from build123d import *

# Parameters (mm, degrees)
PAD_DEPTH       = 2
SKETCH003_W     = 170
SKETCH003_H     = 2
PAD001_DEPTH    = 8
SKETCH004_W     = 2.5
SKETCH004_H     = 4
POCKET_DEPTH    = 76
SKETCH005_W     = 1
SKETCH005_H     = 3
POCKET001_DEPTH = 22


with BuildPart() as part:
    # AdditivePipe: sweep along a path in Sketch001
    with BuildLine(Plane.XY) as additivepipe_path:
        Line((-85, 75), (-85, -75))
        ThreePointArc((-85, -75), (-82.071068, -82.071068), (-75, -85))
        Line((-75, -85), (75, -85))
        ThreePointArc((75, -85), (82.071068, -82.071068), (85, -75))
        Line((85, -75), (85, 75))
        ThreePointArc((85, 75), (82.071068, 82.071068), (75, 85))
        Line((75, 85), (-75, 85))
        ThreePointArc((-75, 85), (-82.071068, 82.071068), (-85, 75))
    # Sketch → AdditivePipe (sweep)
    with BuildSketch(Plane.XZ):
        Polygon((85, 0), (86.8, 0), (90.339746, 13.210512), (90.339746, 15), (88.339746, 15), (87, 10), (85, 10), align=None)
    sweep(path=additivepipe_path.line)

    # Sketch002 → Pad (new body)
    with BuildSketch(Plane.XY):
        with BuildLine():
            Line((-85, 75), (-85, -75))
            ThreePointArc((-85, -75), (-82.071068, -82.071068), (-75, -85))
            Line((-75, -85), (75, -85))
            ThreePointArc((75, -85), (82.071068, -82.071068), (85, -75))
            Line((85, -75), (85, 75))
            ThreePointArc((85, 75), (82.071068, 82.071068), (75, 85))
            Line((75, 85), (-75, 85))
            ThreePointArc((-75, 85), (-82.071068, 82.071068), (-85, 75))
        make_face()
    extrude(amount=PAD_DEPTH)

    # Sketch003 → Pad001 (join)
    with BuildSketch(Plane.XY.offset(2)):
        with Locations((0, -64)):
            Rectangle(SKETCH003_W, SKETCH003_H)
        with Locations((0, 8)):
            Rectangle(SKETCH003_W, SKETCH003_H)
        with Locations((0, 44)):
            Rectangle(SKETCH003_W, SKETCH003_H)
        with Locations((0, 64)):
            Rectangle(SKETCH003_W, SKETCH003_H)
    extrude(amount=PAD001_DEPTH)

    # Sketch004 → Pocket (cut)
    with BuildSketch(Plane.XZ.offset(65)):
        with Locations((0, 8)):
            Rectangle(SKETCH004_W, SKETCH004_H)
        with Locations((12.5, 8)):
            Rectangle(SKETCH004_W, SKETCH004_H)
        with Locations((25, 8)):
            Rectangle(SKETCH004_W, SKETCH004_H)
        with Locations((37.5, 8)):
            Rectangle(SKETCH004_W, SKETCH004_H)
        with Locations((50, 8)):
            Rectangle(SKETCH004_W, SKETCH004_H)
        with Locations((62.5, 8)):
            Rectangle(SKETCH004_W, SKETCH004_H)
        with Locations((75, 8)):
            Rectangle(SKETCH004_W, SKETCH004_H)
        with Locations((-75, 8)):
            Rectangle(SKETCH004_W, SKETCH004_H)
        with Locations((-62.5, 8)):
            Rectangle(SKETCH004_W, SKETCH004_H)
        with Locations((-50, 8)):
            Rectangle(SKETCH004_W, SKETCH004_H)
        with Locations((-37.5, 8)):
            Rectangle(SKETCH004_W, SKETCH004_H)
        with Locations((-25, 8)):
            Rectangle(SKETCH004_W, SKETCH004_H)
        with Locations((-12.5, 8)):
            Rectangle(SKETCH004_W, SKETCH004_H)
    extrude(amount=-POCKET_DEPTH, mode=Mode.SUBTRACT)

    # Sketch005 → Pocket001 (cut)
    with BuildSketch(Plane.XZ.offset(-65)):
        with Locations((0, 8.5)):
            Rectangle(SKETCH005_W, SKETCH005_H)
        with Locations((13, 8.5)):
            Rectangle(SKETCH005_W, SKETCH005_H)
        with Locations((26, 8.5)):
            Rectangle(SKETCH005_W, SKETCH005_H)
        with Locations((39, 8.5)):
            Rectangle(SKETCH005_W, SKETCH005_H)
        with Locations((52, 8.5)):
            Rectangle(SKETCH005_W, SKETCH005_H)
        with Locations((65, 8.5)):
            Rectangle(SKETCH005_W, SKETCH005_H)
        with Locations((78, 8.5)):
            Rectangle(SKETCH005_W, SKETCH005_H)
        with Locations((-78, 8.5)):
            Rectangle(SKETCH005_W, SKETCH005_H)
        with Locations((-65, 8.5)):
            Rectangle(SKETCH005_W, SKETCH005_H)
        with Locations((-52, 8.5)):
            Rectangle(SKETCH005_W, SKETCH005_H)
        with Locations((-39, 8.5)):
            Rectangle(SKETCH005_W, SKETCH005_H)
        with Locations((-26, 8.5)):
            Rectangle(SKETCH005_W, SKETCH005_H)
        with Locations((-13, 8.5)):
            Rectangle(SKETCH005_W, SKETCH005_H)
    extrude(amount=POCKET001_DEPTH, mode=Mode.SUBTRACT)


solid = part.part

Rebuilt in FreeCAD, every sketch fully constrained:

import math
import FreeCAD as App
import Part
import Sketcher

V = App.Vector
Q = App.Units.Quantity


def add_polygon(sketch, points):
    """Adds a closed chain of lines whose ends are joined by coincident constraints."""
    first, n = sketch.GeometryCount, len(points)
    for a, b in zip(points, points[1:] + points[:1]):
        sketch.addGeometry(Part.LineSegment(App.Vector(*a, 0), App.Vector(*b, 0)), False)
    for i in range(n):
        sketch.addConstraint(Sketcher.Constraint("Coincident", first + i, 2, first + (i + 1) % n, 1))

doc = App.newDocument("Part")
body = doc.addObject("PartDesign::Body", "Body")

# Sketch on XZ plane
sketch1 = body.newObject("Sketcher::SketchObject", "Sketch")
sketch1.AttachmentSupport = (doc.getObject("XZ_Plane"), [""])
sketch1.MapMode = "FlatFace"
add_polygon(sketch1, [(85, 0), (86.8, 0), (90.3, 13.2), (90.3, 15), (88.3, 15), (87, 10), (85, 10)])  # lines 0-6
sketch1.addConstraint([
    Sketcher.Constraint("Horizontal", 0),
    Sketcher.Constraint("Vertical", 2),
    Sketcher.Constraint("Horizontal", 3),
    Sketcher.Constraint("Horizontal", 5),
    Sketcher.Constraint("Vertical", 6),
    Sketcher.Constraint("PointOnObject", 0, 2, -1),
    Sketcher.Constraint("Parallel", 1, 4),
    Sketcher.Constraint("Equal", 3, 5),
    Sketcher.Constraint("DistanceX", 3, 2, 3, 1, 2.0),
    Sketcher.Constraint("DistanceY", 6, 2, 6, 1, 10.0),
    Sketcher.Constraint("Angle", 1, Q("75 deg")),
    Sketcher.Constraint("DistanceX", 0, 1, 0, 2, 1.8),
    Sketcher.Constraint("DistanceY", -1, 1, 2, 2, 15.0),
    Sketcher.Constraint("DistanceX", -1, 1, 4, 2, 87.0),
])

# Sketch on XY plane
sketch2 = body.newObject("Sketcher::SketchObject", "Sketch001")
sketch2.AttachmentSupport = (doc.getObject("XY_Plane"), [""])
sketch2.MapMode = "FlatFace"
sketch2.addGeometry([
    Part.LineSegment(V(-85, 75, 0), V(-85, -75, 0)),  # 0
    Part.ArcOfCircle(Part.Circle(V(-75, -75, 0), V(0, 0, 1), 10), math.radians(180), math.radians(270)),  # 1
    Part.LineSegment(V(-75, -85, 0), V(75, -85, 0)),  # 2
    Part.ArcOfCircle(Part.Circle(V(75, -75, 0), V(0, 0, 1), 10), math.radians(-90), math.radians(0)),  # 3
    Part.LineSegment(V(85, -75, 0), V(85, 75, 0)),  # 4
    Part.ArcOfCircle(Part.Circle(V(75, 75, 0), V(0, 0, 1), 10), math.radians(0), math.radians(90)),  # 5
    Part.LineSegment(V(75, 85, 0), V(-75, 85, 0)),  # 6
    Part.ArcOfCircle(Part.Circle(V(-75, 75, 0), V(0, 0, 1), 10), math.radians(90), math.radians(180)),  # 7
], False)
sketch2.addConstraint([
    Sketcher.Constraint("Tangent", 0, 2, 1, 1),
    Sketcher.Constraint("Tangent", 1, 2, 2, 1),
    Sketcher.Constraint("Tangent", 2, 2, 3, 1),
    Sketcher.Constraint("Tangent", 3, 2, 4, 1),
    Sketcher.Constraint("Tangent", 4, 2, 5, 1),
    Sketcher.Constraint("Tangent", 5, 2, 6, 1),
    Sketcher.Constraint("Tangent", 6, 2, 7, 1),
    Sketcher.Constraint("Tangent", 7, 2, 0, 1),
    Sketcher.Constraint("Vertical", 0),
    Sketcher.Constraint("Horizontal", 2),
    Sketcher.Constraint("Vertical", 4),
    Sketcher.Constraint("Horizontal", 6),
    Sketcher.Constraint("Equal", 1, 3),
    Sketcher.Constraint("Equal", 3, 5),
    Sketcher.Constraint("Equal", 5, 7),
    Sketcher.Constraint("Symmetric", 1, 3, 5, 3, -1, 1),
    Sketcher.Constraint("Equal", 6, 0),
    Sketcher.Constraint("Radius", 1, 9.999999),
    Sketcher.Constraint("DistanceX", 2, 1, 2, 2, 150.0),
])
doc.recompute()

additivepipe = body.newObject("PartDesign::AdditivePipe", "AdditivePipe")
additivepipe.Profile = sketch1
additivepipe.Spine = (sketch2, ["Edge1", "Edge2", "Edge3", "Edge4", "Edge5", "Edge6", "Edge7", "Edge8"])

# Sketch on XY plane
sketch3 = body.newObject("Sketcher::SketchObject", "Sketch002")
sketch3.AttachmentSupport = (doc.getObject("XY_Plane"), [""])
sketch3.MapMode = "FlatFace"
sketch3.addGeometry([
    Part.LineSegment(V(-85, 75, 0), V(-85, -75, 0)),  # 0
    Part.ArcOfCircle(Part.Circle(V(-75, -75, 0), V(0, 0, 1), 10), math.radians(180), math.radians(270)),  # 1
    Part.LineSegment(V(-75, -85, 0), V(75, -85, 0)),  # 2
    Part.ArcOfCircle(Part.Circle(V(75, -75, 0), V(0, 0, 1), 10), math.radians(-90), math.radians(0)),  # 3
    Part.LineSegment(V(85, -75, 0), V(85, 75, 0)),  # 4
    Part.ArcOfCircle(Part.Circle(V(75, 75, 0), V(0, 0, 1), 10), math.radians(0), math.radians(90)),  # 5
    Part.LineSegment(V(75, 85, 0), V(-75, 85, 0)),  # 6
    Part.ArcOfCircle(Part.Circle(V(-75, 75, 0), V(0, 0, 1), 10), math.radians(90), math.radians(180)),  # 7
], False)
sketch3.addConstraint([
    Sketcher.Constraint("Tangent", 0, 2, 1, 1),
    Sketcher.Constraint("Tangent", 1, 2, 2, 1),
    Sketcher.Constraint("Tangent", 2, 2, 3, 1),
    Sketcher.Constraint("Tangent", 3, 2, 4, 1),
    Sketcher.Constraint("Tangent", 4, 2, 5, 1),
    Sketcher.Constraint("Tangent", 5, 2, 6, 1),
    Sketcher.Constraint("Tangent", 6, 2, 7, 1),
    Sketcher.Constraint("Tangent", 7, 2, 0, 1),
    Sketcher.Constraint("Vertical", 0),
    Sketcher.Constraint("Horizontal", 2),
    Sketcher.Constraint("Vertical", 4),
    Sketcher.Constraint("Horizontal", 6),
    Sketcher.Constraint("Equal", 1, 3),
    Sketcher.Constraint("Equal", 3, 5),
    Sketcher.Constraint("Equal", 5, 7),
    Sketcher.Constraint("Symmetric", 1, 3, 5, 3, -1, 1),
    Sketcher.Constraint("Equal", 6, 0),
    Sketcher.Constraint("Radius", 1, 9.999999),
    Sketcher.Constraint("DistanceX", 2, 1, 2, 2, 150.0),
])
pad1 = body.newObject("PartDesign::Pad", "Pad")
pad1.Profile = sketch3
pad1.Length = 2

# Sketch on XY plane
sketch4 = body.newObject("Sketcher::SketchObject", "Sketch003")
sketch4.AttachmentSupport = (doc.getObject("XY_Plane"), [""])
sketch4.MapMode = "FlatFace"
sketch4.AttachmentOffset = App.Placement(V(0, 0, 2), App.Rotation())
add_polygon(sketch4, [(-85, -63), (-85, -65), (85, -65), (85, -63)])  # lines 0-3
add_polygon(sketch4, [(-85, 9), (-85, 7), (85, 7), (85, 9)])  # lines 4-7
add_polygon(sketch4, [(-85, 45), (-85, 43), (85, 43), (85, 45)])  # lines 8-11
add_polygon(sketch4, [(-85, 65), (-85, 63), (85, 63), (85, 65)])  # lines 12-15
sketch4.addConstraint([
    Sketcher.Constraint("Vertical", 0),
    Sketcher.Constraint("Horizontal", 1),
    Sketcher.Constraint("Vertical", 2),
    Sketcher.Constraint("Horizontal", 3),
    Sketcher.Constraint("Vertical", 4),
    Sketcher.Constraint("Horizontal", 5),
    Sketcher.Constraint("Vertical", 6),
    Sketcher.Constraint("Horizontal", 7),
    Sketcher.Constraint("Vertical", 8),
    Sketcher.Constraint("Horizontal", 9),
    Sketcher.Constraint("Vertical", 10),
    Sketcher.Constraint("Horizontal", 11),
    Sketcher.Constraint("Vertical", 12),
    Sketcher.Constraint("Horizontal", 13),
    Sketcher.Constraint("Vertical", 14),
    Sketcher.Constraint("Horizontal", 15),
    Sketcher.Constraint("Symmetric", 2, 2, 12, 2, -1, 1),
    Sketcher.Constraint("Symmetric", 0, 2, 14, 2, -1, 1),
    Sketcher.Constraint("Vertical", 3, 2, 4, 2),
    Sketcher.Constraint("Vertical", 2, 2, 5, 2),
    Sketcher.Constraint("Vertical", 7, 2, 8, 2),
    Sketcher.Constraint("Vertical", 6, 2, 9, 2),
    Sketcher.Constraint("Vertical", 11, 2, 12, 2),
    Sketcher.Constraint("Equal", 2, 4),
    Sketcher.Constraint("Equal", 6, 8),
    Sketcher.Constraint("DistanceX", 1, 1, 1, 2, 170.0),
    Sketcher.Constraint("DistanceY", 0, 2, 0, 1, 2.0),
    Sketcher.Constraint("DistanceY", 0, 2, -1, 1, 65.0),
    Sketcher.Constraint("DistanceY", -1, 1, 4, 2, 7.0),
    Sketcher.Constraint("DistanceY", -1, 1, 8, 2, 43.0),
])
pad2 = body.newObject("PartDesign::Pad", "Pad001")
pad2.Profile = sketch4
pad2.Length = 8

# Sketch on XZ plane
sketch5 = body.newObject("Sketcher::SketchObject", "Sketch004")
sketch5.AttachmentSupport = (doc.getObject("XZ_Plane"), [""])
sketch5.MapMode = "FlatFace"
sketch5.AttachmentOffset = App.Placement(V(0, 0, 65), App.Rotation())
add_polygon(sketch5, [(-1.2, 10), (-1.2, 6), (1.2, 6), (1.2, 10)])  # lines 0-3
add_polygon(sketch5, [(11.2, 10), (11.2, 6), (13.8, 6), (13.8, 10)])  # lines 4-7
add_polygon(sketch5, [(23.8, 10), (23.8, 6), (26.2, 6), (26.2, 10)])  # lines 8-11
add_polygon(sketch5, [(36.2, 10), (36.2, 6), (38.8, 6), (38.8, 10)])  # lines 12-15
add_polygon(sketch5, [(48.8, 10), (48.8, 6), (51.2, 6), (51.2, 10)])  # lines 16-19
add_polygon(sketch5, [(61.2, 10), (61.2, 6), (63.8, 6), (63.8, 10)])  # lines 20-23
add_polygon(sketch5, [(73.8, 10), (73.8, 6), (76.2, 6), (76.2, 10)])  # lines 24-27
add_polygon(sketch5, [(-76.2, 10), (-76.2, 6), (-73.8, 6), (-73.8, 10)])  # lines 28-31
add_polygon(sketch5, [(-63.8, 10), (-63.8, 6), (-61.2, 6), (-61.2, 10)])  # lines 32-35
add_polygon(sketch5, [(-51.2, 10), (-51.2, 6), (-48.8, 6), (-48.8, 10)])  # lines 36-39
add_polygon(sketch5, [(-38.8, 10), (-38.8, 6), (-36.2, 6), (-36.2, 10)])  # lines 40-43
add_polygon(sketch5, [(-26.2, 10), (-26.2, 6), (-23.8, 6), (-23.8, 10)])  # lines 44-47
add_polygon(sketch5, [(-13.8, 10), (-13.8, 6), (-11.2, 6), (-11.2, 10)])  # lines 48-51
sketch5.addConstraint([
    Sketcher.Constraint("Vertical", 0),
    Sketcher.Constraint("Horizontal", 1),
    Sketcher.Constraint("Vertical", 2),
    Sketcher.Constraint("Horizontal", 3),
    Sketcher.Constraint("Vertical", 4),
    Sketcher.Constraint("Horizontal", 5),
    Sketcher.Constraint("Vertical", 6),
    Sketcher.Constraint("Horizontal", 7),
    Sketcher.Constraint("Vertical", 8),
    Sketcher.Constraint("Horizontal", 9),
    Sketcher.Constraint("Vertical", 10),
    Sketcher.Constraint("Horizontal", 11),
    Sketcher.Constraint("Vertical", 12),
    Sketcher.Constraint("Horizontal", 13),
    Sketcher.Constraint("Vertical", 14),
    Sketcher.Constraint("Horizontal", 15),
    Sketcher.Constraint("Vertical", 16),
    Sketcher.Constraint("Horizontal", 17),
    Sketcher.Constraint("Vertical", 18),
    Sketcher.Constraint("Horizontal", 19),
    Sketcher.Constraint("Vertical", 20),
    Sketcher.Constraint("Horizontal", 21),
    Sketcher.Constraint("Vertical", 22),
    Sketcher.Constraint("Horizontal", 23),
    Sketcher.Constraint("Vertical", 24),
    Sketcher.Constraint("Horizontal", 25),
    Sketcher.Constraint("Vertical", 26),
    Sketcher.Constraint("Horizontal", 27),
    Sketcher.Constraint("Vertical", 28),
    Sketcher.Constraint("Horizontal", 29),
    Sketcher.Constraint("Vertical", 30),
    Sketcher.Constraint("Horizontal", 31),
    Sketcher.Constraint("Vertical", 32),
    Sketcher.Constraint("Horizontal", 33),
    Sketcher.Constraint("Vertical", 34),
    Sketcher.Constraint("Horizontal", 35),
    Sketcher.Constraint("Vertical", 36),
    Sketcher.Constraint("Horizontal", 37),
    Sketcher.Constraint("Vertical", 38),
    Sketcher.Constraint("Horizontal", 39),
    Sketcher.Constraint("Vertical", 40),
    Sketcher.Constraint("Horizontal", 41),
    Sketcher.Constraint("Vertical", 42),
    Sketcher.Constraint("Horizontal", 43),
    Sketcher.Constraint("Vertical", 44),
    Sketcher.Constraint("Horizontal", 45),
    Sketcher.Constraint("Vertical", 46),
    Sketcher.Constraint("Horizontal", 47),
    Sketcher.Constraint("Vertical", 48),
    Sketcher.Constraint("Horizontal", 49),
    Sketcher.Constraint("Vertical", 50),
    Sketcher.Constraint("Horizontal", 51),
    Sketcher.Constraint("Symmetric", 25, 2, 28, 2, -2),
    Sketcher.Constraint("Symmetric", 27, 2, 30, 2, -2),
    Sketcher.Constraint("Symmetric", 21, 2, 32, 2, -2),
    Sketcher.Constraint("Symmetric", 23, 2, 34, 2, -2),
    Sketcher.Constraint("Symmetric", 17, 2, 36, 2, -2),
    Sketcher.Constraint("Symmetric", 19, 2, 38, 2, -2),
    Sketcher.Constraint("Symmetric", 13, 2, 40, 2, -2),
    Sketcher.Constraint("Symmetric", 15, 2, 42, 2, -2),
    Sketcher.Constraint("Symmetric", 9, 2, 44, 2, -2),
    Sketcher.Constraint("Symmetric", 11, 2, 46, 2, -2),
    Sketcher.Constraint("Symmetric", 5, 2, 48, 2, -2),
    Sketcher.Constraint("Symmetric", 7, 2, 50, 2, -2),
    Sketcher.Constraint("Horizontal", 1, 2, 4, 2),
    Sketcher.Constraint("Horizontal", 3, 2, 6, 2),
    Sketcher.Constraint("Horizontal", 5, 2, 8, 2),
    Sketcher.Constraint("Horizontal", 7, 2, 10, 2),
    Sketcher.Constraint("Horizontal", 9, 2, 12, 2),
    Sketcher.Constraint("Horizontal", 11, 2, 14, 2),
    Sketcher.Constraint("Horizontal", 13, 2, 16, 2),
    Sketcher.Constraint("Horizontal", 15, 2, 18, 2),
    Sketcher.Constraint("Horizontal", 17, 2, 20, 2),
    Sketcher.Constraint("Horizontal", 19, 2, 22, 2),
    Sketcher.Constraint("Horizontal", 21, 2, 24, 2),
    Sketcher.Constraint("Horizontal", 23, 2, 26, 2),
    Sketcher.Constraint("Equal", 3, 5),
    Sketcher.Constraint("Equal", 7, 9),
    Sketcher.Constraint("Equal", 11, 13),
    Sketcher.Constraint("Equal", 15, 17),
    Sketcher.Constraint("Equal", 19, 21),
    Sketcher.Constraint("Equal", 23, 25),
    Sketcher.Constraint("DistanceY", 0, 2, 0, 1, 4.0),
    Sketcher.Constraint("DistanceX", 1, 1, 1, 2, 2.5),
    Sketcher.Constraint("DistanceY", -1, 1, 0, 2, 6.0),
    Sketcher.Constraint("DistanceX", 1, 2, 4, 2, 10.0),
    Sketcher.Constraint("DistanceX", 5, 2, 8, 2, 10.0),
    Sketcher.Constraint("DistanceX", 9, 2, 12, 2, 10.0),
    Sketcher.Constraint("DistanceX", 13, 2, 16, 2, 10.0),
    Sketcher.Constraint("DistanceX", 17, 2, 20, 2, 10.0),
    Sketcher.Constraint("DistanceX", 21, 2, 24, 2, 10.0),
    Sketcher.Constraint("DistanceX", 28, 2, 0, 2, 75.0),
])
pocket1 = body.newObject("PartDesign::Pocket", "Pocket")
pocket1.Profile = sketch5
pocket1.Length = 76

# Sketch on XZ plane
sketch6 = body.newObject("Sketcher::SketchObject", "Sketch005")
sketch6.AttachmentSupport = (doc.getObject("XZ_Plane"), [""])
sketch6.MapMode = "FlatFace"
sketch6.AttachmentOffset = App.Placement(V(0, 0, -65), App.Rotation())
add_polygon(sketch6, [(-0.5, 10), (-0.5, 7), (0.5, 7), (0.5, 10)])  # lines 0-3
add_polygon(sketch6, [(12.5, 10), (12.5, 7), (13.5, 7), (13.5, 10)])  # lines 4-7
add_polygon(sketch6, [(25.5, 10), (25.5, 7), (26.5, 7), (26.5, 10)])  # lines 8-11
add_polygon(sketch6, [(38.5, 10), (38.5, 7), (39.5, 7), (39.5, 10)])  # lines 12-15
add_polygon(sketch6, [(51.5, 10), (51.5, 7), (52.5, 7), (52.5, 10)])  # lines 16-19
add_polygon(sketch6, [(64.5, 10), (64.5, 7), (65.5, 7), (65.5, 10)])  # lines 20-23
add_polygon(sketch6, [(77.5, 10), (77.5, 7), (78.5, 7), (78.5, 10)])  # lines 24-27
add_polygon(sketch6, [(-78.5, 10), (-78.5, 7), (-77.5, 7), (-77.5, 10)])  # lines 28-31
add_polygon(sketch6, [(-65.5, 10), (-65.5, 7), (-64.5, 7), (-64.5, 10)])  # lines 32-35
add_polygon(sketch6, [(-52.5, 10), (-52.5, 7), (-51.5, 7), (-51.5, 10)])  # lines 36-39
add_polygon(sketch6, [(-39.5, 10), (-39.5, 7), (-38.5, 7), (-38.5, 10)])  # lines 40-43
add_polygon(sketch6, [(-26.5, 10), (-26.5, 7), (-25.5, 7), (-25.5, 10)])  # lines 44-47
add_polygon(sketch6, [(-13.5, 10), (-13.5, 7), (-12.5, 7), (-12.5, 10)])  # lines 48-51
sketch6.addConstraint([
    Sketcher.Constraint("Vertical", 0),
    Sketcher.Constraint("Horizontal", 1),
    Sketcher.Constraint("Vertical", 2),
    Sketcher.Constraint("Horizontal", 3),
    Sketcher.Constraint("Vertical", 4),
    Sketcher.Constraint("Horizontal", 5),
    Sketcher.Constraint("Vertical", 6),
    Sketcher.Constraint("Horizontal", 7),
    Sketcher.Constraint("Vertical", 8),
    Sketcher.Constraint("Horizontal", 9),
    Sketcher.Constraint("Vertical", 10),
    Sketcher.Constraint("Horizontal", 11),
    Sketcher.Constraint("Vertical", 12),
    Sketcher.Constraint("Horizontal", 13),
    Sketcher.Constraint("Vertical", 14),
    Sketcher.Constraint("Horizontal", 15),
    Sketcher.Constraint("Vertical", 16),
    Sketcher.Constraint("Horizontal", 17),
    Sketcher.Constraint("Vertical", 18),
    Sketcher.Constraint("Horizontal", 19),
    Sketcher.Constraint("Vertical", 20),
    Sketcher.Constraint("Horizontal", 21),
    Sketcher.Constraint("Vertical", 22),
    Sketcher.Constraint("Horizontal", 23),
    Sketcher.Constraint("Vertical", 24),
    Sketcher.Constraint("Horizontal", 25),
    Sketcher.Constraint("Vertical", 26),
    Sketcher.Constraint("Horizontal", 27),
    Sketcher.Constraint("Vertical", 28),
    Sketcher.Constraint("Horizontal", 29),
    Sketcher.Constraint("Vertical", 30),
    Sketcher.Constraint("Horizontal", 31),
    Sketcher.Constraint("Vertical", 32),
    Sketcher.Constraint("Horizontal", 33),
    Sketcher.Constraint("Vertical", 34),
    Sketcher.Constraint("Horizontal", 35),
    Sketcher.Constraint("Vertical", 36),
    Sketcher.Constraint("Horizontal", 37),
    Sketcher.Constraint("Vertical", 38),
    Sketcher.Constraint("Horizontal", 39),
    Sketcher.Constraint("Vertical", 40),
    Sketcher.Constraint("Horizontal", 41),
    Sketcher.Constraint("Vertical", 42),
    Sketcher.Constraint("Horizontal", 43),
    Sketcher.Constraint("Vertical", 44),
    Sketcher.Constraint("Horizontal", 45),
    Sketcher.Constraint("Vertical", 46),
    Sketcher.Constraint("Horizontal", 47),
    Sketcher.Constraint("Vertical", 48),
    Sketcher.Constraint("Horizontal", 49),
    Sketcher.Constraint("Vertical", 50),
    Sketcher.Constraint("Horizontal", 51),
    Sketcher.Constraint("Symmetric", 25, 2, 28, 2, -2),
    Sketcher.Constraint("Symmetric", 27, 2, 30, 2, -2),
    Sketcher.Constraint("Symmetric", 21, 2, 32, 2, -2),
    Sketcher.Constraint("Symmetric", 23, 2, 34, 2, -2),
    Sketcher.Constraint("Symmetric", 17, 2, 36, 2, -2),
    Sketcher.Constraint("Symmetric", 19, 2, 38, 2, -2),
    Sketcher.Constraint("Symmetric", 13, 2, 40, 2, -2),
    Sketcher.Constraint("Symmetric", 15, 2, 42, 2, -2),
    Sketcher.Constraint("Symmetric", 9, 2, 44, 2, -2),
    Sketcher.Constraint("Symmetric", 11, 2, 46, 2, -2),
    Sketcher.Constraint("Symmetric", 5, 2, 48, 2, -2),
    Sketcher.Constraint("Symmetric", 7, 2, 50, 2, -2),
    Sketcher.Constraint("Horizontal", 1, 2, 4, 2),
    Sketcher.Constraint("Horizontal", 3, 2, 6, 2),
    Sketcher.Constraint("Horizontal", 5, 2, 8, 2),
    Sketcher.Constraint("Horizontal", 7, 2, 10, 2),
    Sketcher.Constraint("Horizontal", 9, 2, 12, 2),
    Sketcher.Constraint("Horizontal", 11, 2, 14, 2),
    Sketcher.Constraint("Horizontal", 13, 2, 16, 2),
    Sketcher.Constraint("Horizontal", 15, 2, 18, 2),
    Sketcher.Constraint("Horizontal", 17, 2, 20, 2),
    Sketcher.Constraint("Horizontal", 19, 2, 22, 2),
    Sketcher.Constraint("Horizontal", 21, 2, 24, 2),
    Sketcher.Constraint("Horizontal", 23, 2, 26, 2),
    Sketcher.Constraint("Equal", 3, 5),
    Sketcher.Constraint("Equal", 7, 9),
    Sketcher.Constraint("Equal", 11, 13),
    Sketcher.Constraint("Equal", 15, 17),
    Sketcher.Constraint("Equal", 19, 21),
    Sketcher.Constraint("Equal", 23, 25),
    Sketcher.Constraint("DistanceX", 1, 1, 1, 2, 1.0),
    Sketcher.Constraint("DistanceY", 0, 2, 0, 1, 3.0),
    Sketcher.Constraint("DistanceY", -1, 1, 0, 2, 7.0),
    Sketcher.Constraint("DistanceX", 1, 2, 4, 2, 12.0),
    Sketcher.Constraint("DistanceX", 5, 2, 8, 2, 12.0),
    Sketcher.Constraint("DistanceX", 9, 2, 12, 2, 12.0),
    Sketcher.Constraint("DistanceX", 13, 2, 16, 2, 12.0),
    Sketcher.Constraint("DistanceX", 17, 2, 20, 2, 12.0),
    Sketcher.Constraint("DistanceX", 21, 2, 24, 2, 12.0),
    Sketcher.Constraint("DistanceX", 28, 2, 0, 2, 78.0),
])
pocket2 = body.newObject("PartDesign::Pocket", "Pocket001")
pocket2.Profile = sketch6
pocket2.Length = 22
pocket2.Reversed = True

doc.recompute()
